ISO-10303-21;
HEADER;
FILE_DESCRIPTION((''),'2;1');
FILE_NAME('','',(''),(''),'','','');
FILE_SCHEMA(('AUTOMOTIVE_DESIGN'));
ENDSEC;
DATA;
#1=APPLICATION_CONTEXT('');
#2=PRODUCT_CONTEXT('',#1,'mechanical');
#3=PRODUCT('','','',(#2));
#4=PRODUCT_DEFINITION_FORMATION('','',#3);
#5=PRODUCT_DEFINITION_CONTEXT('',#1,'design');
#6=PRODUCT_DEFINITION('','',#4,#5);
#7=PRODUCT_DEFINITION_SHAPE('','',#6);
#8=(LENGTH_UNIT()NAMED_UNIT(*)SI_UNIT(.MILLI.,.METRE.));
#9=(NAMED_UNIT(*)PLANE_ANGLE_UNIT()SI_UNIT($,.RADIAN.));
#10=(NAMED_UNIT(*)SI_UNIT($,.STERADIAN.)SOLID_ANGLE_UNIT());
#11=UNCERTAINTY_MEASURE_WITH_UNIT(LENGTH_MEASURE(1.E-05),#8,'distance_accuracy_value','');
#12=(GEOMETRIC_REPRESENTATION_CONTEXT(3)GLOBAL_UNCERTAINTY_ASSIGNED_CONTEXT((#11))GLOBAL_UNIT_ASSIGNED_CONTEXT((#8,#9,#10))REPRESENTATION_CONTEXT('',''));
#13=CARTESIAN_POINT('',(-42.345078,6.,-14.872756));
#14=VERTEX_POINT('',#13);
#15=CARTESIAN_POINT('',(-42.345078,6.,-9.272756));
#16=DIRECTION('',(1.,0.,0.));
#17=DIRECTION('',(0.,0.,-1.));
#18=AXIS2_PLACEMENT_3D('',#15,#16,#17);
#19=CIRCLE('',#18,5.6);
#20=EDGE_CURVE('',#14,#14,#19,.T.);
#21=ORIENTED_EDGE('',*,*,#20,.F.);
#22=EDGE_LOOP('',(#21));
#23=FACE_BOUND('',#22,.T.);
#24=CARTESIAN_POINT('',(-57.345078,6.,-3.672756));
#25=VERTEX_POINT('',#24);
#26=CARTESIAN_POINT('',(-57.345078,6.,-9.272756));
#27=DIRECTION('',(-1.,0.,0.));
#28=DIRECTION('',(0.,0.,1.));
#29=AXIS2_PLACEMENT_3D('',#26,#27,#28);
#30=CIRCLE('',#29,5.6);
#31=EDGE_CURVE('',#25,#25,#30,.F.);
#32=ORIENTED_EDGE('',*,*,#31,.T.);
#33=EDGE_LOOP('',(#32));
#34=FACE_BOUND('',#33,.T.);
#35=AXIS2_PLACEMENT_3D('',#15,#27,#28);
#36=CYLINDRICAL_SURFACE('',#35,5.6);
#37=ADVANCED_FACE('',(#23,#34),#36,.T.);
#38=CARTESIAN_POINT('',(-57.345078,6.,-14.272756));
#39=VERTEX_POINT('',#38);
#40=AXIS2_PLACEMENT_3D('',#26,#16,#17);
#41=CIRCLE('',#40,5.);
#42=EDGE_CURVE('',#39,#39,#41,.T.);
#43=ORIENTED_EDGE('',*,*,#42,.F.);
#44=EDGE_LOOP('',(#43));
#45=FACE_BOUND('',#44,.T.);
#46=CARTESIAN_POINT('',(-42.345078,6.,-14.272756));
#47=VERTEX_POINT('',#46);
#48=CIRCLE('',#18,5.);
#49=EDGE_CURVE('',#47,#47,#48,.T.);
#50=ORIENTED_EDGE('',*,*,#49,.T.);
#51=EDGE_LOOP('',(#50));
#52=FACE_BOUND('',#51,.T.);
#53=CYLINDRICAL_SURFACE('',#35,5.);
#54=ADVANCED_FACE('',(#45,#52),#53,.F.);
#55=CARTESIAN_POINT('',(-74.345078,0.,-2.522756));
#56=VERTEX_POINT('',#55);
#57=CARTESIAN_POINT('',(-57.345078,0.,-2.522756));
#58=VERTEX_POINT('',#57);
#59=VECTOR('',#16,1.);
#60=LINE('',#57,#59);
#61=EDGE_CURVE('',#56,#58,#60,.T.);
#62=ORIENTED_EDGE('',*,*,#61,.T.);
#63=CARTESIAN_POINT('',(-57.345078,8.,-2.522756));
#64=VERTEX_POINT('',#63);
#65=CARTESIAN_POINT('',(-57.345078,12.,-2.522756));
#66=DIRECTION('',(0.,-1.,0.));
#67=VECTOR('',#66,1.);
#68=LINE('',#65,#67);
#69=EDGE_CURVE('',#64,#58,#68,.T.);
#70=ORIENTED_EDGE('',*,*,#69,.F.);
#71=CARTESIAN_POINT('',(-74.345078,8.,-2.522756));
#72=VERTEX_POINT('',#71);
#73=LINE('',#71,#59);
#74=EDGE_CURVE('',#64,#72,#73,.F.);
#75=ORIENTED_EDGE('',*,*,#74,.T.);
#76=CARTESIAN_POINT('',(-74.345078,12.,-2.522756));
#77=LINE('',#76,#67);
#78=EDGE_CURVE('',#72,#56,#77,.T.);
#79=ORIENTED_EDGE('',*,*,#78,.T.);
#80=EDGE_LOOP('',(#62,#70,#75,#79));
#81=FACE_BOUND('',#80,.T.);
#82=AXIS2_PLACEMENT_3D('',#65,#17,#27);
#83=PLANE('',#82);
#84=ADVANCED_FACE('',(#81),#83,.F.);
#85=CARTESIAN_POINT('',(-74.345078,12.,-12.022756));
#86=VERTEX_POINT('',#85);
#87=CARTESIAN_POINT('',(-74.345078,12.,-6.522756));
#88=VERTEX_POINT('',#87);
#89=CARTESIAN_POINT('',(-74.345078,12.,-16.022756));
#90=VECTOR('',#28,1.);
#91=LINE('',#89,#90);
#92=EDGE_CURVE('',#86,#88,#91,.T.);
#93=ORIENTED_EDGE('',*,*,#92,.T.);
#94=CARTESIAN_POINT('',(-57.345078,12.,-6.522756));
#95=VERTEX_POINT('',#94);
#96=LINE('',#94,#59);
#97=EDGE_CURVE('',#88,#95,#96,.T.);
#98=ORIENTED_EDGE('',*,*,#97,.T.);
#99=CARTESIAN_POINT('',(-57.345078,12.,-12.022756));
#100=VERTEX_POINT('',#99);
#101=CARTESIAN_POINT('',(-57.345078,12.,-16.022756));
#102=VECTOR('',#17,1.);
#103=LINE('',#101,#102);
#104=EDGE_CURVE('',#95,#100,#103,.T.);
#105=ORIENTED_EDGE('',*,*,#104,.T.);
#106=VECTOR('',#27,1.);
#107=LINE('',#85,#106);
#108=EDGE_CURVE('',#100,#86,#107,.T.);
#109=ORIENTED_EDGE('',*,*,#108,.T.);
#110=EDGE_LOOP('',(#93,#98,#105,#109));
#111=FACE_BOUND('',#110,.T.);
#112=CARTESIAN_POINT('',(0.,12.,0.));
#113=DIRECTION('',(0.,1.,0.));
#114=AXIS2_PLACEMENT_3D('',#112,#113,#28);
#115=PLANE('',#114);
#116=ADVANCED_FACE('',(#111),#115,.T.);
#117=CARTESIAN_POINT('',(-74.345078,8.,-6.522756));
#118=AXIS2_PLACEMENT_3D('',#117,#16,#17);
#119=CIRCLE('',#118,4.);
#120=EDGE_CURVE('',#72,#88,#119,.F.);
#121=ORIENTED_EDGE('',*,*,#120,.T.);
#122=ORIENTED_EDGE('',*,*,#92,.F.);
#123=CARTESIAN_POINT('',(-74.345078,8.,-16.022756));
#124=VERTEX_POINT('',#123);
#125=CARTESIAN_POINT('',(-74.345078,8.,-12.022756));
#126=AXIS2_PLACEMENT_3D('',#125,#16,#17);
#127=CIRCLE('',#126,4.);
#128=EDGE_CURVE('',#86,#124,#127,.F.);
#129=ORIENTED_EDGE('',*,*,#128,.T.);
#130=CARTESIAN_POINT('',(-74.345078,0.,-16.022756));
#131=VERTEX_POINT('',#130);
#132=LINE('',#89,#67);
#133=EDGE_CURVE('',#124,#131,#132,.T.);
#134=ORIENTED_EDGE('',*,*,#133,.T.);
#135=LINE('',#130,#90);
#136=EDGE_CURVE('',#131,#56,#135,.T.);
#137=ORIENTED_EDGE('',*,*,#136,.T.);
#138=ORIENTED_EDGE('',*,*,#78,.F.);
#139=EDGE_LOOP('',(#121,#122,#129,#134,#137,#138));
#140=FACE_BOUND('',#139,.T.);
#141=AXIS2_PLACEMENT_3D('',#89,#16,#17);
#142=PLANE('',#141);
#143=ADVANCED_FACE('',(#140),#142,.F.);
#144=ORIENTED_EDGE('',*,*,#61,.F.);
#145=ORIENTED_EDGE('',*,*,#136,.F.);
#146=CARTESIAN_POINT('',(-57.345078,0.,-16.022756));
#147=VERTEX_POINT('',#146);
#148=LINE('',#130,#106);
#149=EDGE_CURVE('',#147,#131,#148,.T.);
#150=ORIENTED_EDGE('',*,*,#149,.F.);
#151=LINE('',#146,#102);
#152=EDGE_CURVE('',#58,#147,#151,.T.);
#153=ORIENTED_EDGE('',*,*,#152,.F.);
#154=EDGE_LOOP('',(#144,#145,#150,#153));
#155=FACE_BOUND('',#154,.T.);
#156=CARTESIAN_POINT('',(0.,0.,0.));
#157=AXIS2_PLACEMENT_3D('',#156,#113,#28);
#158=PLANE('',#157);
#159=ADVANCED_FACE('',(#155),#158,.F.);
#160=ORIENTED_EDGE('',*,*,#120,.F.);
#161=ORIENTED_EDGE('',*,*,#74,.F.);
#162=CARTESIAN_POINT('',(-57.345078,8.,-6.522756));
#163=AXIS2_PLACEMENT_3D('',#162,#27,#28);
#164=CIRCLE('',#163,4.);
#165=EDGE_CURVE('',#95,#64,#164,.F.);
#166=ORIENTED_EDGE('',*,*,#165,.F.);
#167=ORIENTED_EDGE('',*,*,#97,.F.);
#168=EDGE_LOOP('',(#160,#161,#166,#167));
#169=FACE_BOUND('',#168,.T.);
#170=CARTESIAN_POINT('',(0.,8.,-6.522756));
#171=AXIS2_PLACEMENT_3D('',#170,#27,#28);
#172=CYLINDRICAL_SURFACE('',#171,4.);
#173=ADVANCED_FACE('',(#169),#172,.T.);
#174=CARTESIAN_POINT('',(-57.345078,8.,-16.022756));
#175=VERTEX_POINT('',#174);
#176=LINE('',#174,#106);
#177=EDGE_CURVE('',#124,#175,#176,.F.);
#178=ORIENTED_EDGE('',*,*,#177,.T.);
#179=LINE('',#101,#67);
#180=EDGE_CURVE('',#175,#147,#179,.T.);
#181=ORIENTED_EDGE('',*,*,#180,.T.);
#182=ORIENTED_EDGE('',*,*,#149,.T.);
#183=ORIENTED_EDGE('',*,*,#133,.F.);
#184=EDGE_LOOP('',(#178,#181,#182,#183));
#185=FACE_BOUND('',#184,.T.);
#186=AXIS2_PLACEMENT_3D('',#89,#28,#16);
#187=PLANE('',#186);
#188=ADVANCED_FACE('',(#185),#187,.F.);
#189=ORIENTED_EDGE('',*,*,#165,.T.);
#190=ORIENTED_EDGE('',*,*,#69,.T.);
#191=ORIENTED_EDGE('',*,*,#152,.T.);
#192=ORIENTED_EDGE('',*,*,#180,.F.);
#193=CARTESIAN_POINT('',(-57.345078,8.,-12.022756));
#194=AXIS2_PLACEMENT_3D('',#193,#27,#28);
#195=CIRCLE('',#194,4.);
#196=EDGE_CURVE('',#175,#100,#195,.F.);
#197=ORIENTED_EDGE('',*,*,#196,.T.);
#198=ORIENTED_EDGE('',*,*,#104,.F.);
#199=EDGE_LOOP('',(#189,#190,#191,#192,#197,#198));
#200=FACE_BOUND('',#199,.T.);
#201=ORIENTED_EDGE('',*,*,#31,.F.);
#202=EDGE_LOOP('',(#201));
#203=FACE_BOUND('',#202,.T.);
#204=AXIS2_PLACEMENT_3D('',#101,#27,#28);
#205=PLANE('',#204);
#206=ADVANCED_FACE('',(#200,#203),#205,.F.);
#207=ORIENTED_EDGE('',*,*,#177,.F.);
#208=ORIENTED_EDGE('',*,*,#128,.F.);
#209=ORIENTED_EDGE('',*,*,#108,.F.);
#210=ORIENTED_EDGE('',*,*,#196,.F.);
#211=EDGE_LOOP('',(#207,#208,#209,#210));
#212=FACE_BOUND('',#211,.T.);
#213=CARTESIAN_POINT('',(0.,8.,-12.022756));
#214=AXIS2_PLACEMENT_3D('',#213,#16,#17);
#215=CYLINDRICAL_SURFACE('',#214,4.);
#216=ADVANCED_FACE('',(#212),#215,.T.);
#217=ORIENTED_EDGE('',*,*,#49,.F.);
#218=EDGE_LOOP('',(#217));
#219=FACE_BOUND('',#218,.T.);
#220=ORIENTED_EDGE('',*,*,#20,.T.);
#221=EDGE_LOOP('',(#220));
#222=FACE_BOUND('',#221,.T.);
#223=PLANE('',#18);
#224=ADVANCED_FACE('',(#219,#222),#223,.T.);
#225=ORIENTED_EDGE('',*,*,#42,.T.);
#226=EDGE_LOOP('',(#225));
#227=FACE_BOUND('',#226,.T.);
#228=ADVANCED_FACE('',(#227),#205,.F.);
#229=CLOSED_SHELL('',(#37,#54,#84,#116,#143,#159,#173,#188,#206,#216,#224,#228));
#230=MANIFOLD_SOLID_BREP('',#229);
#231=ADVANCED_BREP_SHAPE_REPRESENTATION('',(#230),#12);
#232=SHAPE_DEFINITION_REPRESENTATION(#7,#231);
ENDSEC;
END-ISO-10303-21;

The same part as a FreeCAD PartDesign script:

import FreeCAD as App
import Part
import Sketcher
from FreeCAD import Vector
Q = App.Units.Quantity


def edges_at(feature, points):
    """Names of the edges that pass closest to the given points."""
    edges = feature.Shape.Edges
    near = lambda p: min(range(len(edges)), key=lambda i: edges[i].distToShape(Part.Vertex(*p))[0])
    return sorted({f"Edge{near(p) + 1}" for p in points})


def add_polygon(sketch, points):
    """Adds a closed chain of lines whose ends are joined by coincident constraints."""
    first, n = sketch.GeometryCount, len(points)
    for a, b in zip(points, points[1:] + points[:1]):
        sketch.addGeometry(Part.LineSegment(App.Vector(*a, 0), App.Vector(*b, 0)), False)
    for i in range(n):
        sketch.addConstraint(Sketcher.Constraint("Coincident", first + i, 2, first + (i + 1) % n, 1))

doc = App.newDocument("Part")
body = doc.addObject("PartDesign::Body", "Body")

sketch1 = body.newObject("Sketcher::SketchObject", "Sketch")
sketch1.AttachmentSupport = (doc.getObject("XZ_Plane"), [""])
sketch1.MapMode = "FlatFace"
add_polygon(sketch1, [(-74, -16), (-74, -3), (-57, -3), (-57, -16)])
sketch1.addConstraint(Sketcher.Constraint("Vertical", 0))
sketch1.addConstraint(Sketcher.Constraint("Horizontal", 1))
sketch1.addConstraint(Sketcher.Constraint("Vertical", 2))
sketch1.addConstraint(Sketcher.Constraint("Horizontal", 3))
sketch1.addConstraint(Sketcher.Constraint("DistanceX", 1, 1, 1, 2, Q("17 mm")))
sketch1.addConstraint(Sketcher.Constraint("DistanceY", 0, 1, 0, 2, Q("13.5 mm")))
sketch1.addConstraint(Sketcher.Constraint("DistanceX", 0, 2, -1, 1, Q("74.345078 mm")))
sketch1.addConstraint(Sketcher.Constraint("DistanceY", 0, 2, -1, 1, Q("2.522756 mm")))
pad1 = body.newObject("PartDesign::Pad", "Pad")
pad1.Profile = sketch1
pad1.Length = 12
pad1.Reversed = True

sketch2 = body.newObject("Sketcher::SketchObject", "Sketch001")
sketch2.AttachmentSupport = (doc.getObject("YZ_Plane"), [""])
sketch2.MapMode = "FlatFace"
sketch2.AttachmentOffset = App.Placement(Vector(0, 0, -57.345078), App.Rotation())
sketch2.addGeometry(Part.Circle(Vector(6, -9, 0), Vector(0, 0, 1), 6), False)
sketch2.addGeometry(Part.Circle(Vector(6, -9, 0), Vector(0, 0, 1), 5), False)
sketch2.addConstraint(Sketcher.Constraint("Coincident", 1, 3, 0, 3))
sketch2.addConstraint(Sketcher.Constraint("Diameter", 1, Q("10 mm")))
sketch2.addConstraint(Sketcher.Constraint("Diameter", 0, Q("11.2 mm")))
sketch2.addConstraint(Sketcher.Constraint("DistanceX", -1, 1, 0, 3, Q("6 mm")))
sketch2.addConstraint(Sketcher.Constraint("DistanceY", 0, 3, -1, 1, Q("9.272756 mm")))
pad2 = body.newObject("PartDesign::Pad", "Pad001")
pad2.Profile = sketch2
pad2.Length = 15
doc.recompute()

fillet = body.newObject("PartDesign::Fillet", "Fillet")
fillet.Base = (pad2, edges_at(pad2, [(-65.845, 12, -16.023), (-65.845, 12, -2.523)]))
fillet.Radius = 4

doc.recompute()
